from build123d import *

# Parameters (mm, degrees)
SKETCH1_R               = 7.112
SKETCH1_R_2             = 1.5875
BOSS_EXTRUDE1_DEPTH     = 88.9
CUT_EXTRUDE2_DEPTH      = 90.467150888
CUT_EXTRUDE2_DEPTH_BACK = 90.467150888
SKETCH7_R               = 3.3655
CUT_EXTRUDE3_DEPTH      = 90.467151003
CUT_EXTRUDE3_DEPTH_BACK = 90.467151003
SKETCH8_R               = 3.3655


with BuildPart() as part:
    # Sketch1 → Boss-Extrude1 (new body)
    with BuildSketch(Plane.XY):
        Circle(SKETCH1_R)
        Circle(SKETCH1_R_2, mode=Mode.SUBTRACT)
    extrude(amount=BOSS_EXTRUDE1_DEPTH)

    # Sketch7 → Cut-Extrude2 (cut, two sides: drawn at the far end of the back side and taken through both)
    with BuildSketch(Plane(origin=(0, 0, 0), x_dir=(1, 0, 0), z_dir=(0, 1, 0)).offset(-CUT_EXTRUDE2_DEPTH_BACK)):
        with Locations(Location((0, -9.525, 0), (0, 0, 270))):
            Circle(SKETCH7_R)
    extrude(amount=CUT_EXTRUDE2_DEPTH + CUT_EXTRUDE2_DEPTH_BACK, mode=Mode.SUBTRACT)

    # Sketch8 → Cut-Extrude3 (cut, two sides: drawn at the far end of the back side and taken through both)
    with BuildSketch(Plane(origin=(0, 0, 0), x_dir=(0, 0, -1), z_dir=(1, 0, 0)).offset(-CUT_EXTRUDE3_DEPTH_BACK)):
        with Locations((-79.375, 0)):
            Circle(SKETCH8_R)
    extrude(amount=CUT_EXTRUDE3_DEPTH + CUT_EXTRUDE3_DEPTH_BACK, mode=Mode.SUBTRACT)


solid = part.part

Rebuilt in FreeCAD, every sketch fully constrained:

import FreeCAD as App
import Part
import Sketcher
from FreeCAD import Vector
Q = App.Units.Quantity

doc = App.newDocument("Part")
params = doc.addObject("Spreadsheet::Sheet", "Params")
for row, (alias, value) in enumerate([
    ("sketch1_diameter", "0.56 in"),
    ("sketch1_diameter2", "0.125 in"),
    ("pad1_length", "3.5 in"),
    ("sketch2_diameter", "0.265 in"),
    ("sketch3_diameter", "0.265 in"),
], start=1):
    params.set(f"A{row}", alias)
    params.set(f"B{row}", "=" + value)
    params.setAlias(f"B{row}", alias)

body = doc.addObject("PartDesign::Body", "Body")

# Sketch on XY plane
sketch1 = body.newObject("Sketcher::SketchObject", "Sketch")
sketch1.AttachmentSupport = (doc.getObject("XY_Plane"), [""])
sketch1.MapMode = "FlatFace"
sketch1.addGeometry([
    Part.Circle(Vector(0, 0, 0), Vector(0, 0, 1), 7.1),
    Part.Circle(Vector(0, 0, 0), Vector(0, 0, 1), 1.6),
], False)
sketch1.addConstraint([
    Sketcher.Constraint("Coincident", 0, 3, -1, 1),
    Sketcher.Constraint("Coincident", 1, 3, -1, 1),
    Sketcher.Constraint("Diameter", 0, Q("0.56 in")),
    Sketcher.Constraint("Diameter", 1, Q("0.125 in")),
])
sketch1.setExpression("Constraints[2]", "Params.sketch1_diameter")
sketch1.setExpression("Constraints[3]", "Params.sketch1_diameter2")
pad1 = body.newObject("PartDesign::Pad", "Pad")
pad1.Profile = sketch1
pad1.setExpression("Length", "Params.pad1_length")

# Sketch on XZ plane
sketch2 = body.newObject("Sketcher::SketchObject", "Sketch001")
sketch2.AttachmentSupport = (doc.getObject("XZ_Plane"), [""])
sketch2.MapMode = "FlatFace"
sketch2.addGeometry(Part.Circle(Vector(0, 9.5, 0), Vector(0, 0, 1), 3.4), False)
sketch2.addConstraint([
    Sketcher.Constraint("PointOnObject", 0, 3, -2),
    Sketcher.Constraint("Diameter", 0, Q("0.265 in")),
    Sketcher.Constraint("DistanceY", -1, 1, 0, 3, Q("0.375 in")),
])
sketch2.setExpression("Constraints[1]", "Params.sketch2_diameter")
pocket1 = body.newObject("PartDesign::Pocket", "Pocket")
pocket1.Profile = sketch2
pocket1.Type = "ThroughAll"
pocket1.Midplane = True

# Sketch on YZ plane
sketch3 = body.newObject("Sketcher::SketchObject", "Sketch002")
sketch3.AttachmentSupport = (doc.getObject("YZ_Plane"), [""])
sketch3.MapMode = "FlatFace"
sketch3.addGeometry(Part.Circle(Vector(0, 79.4, 0), Vector(0, 0, 1), 3.4), False)
sketch3.addConstraint([
    Sketcher.Constraint("PointOnObject", 0, 3, -2),
    Sketcher.Constraint("Diameter", 0, Q("0.265 in")),
    Sketcher.Constraint("DistanceY", -1, 1, 0, 3, Q("3.125 in")),
])
sketch3.setExpression("Constraints[1]", "Params.sketch3_diameter")
pocket2 = body.newObject("PartDesign::Pocket", "Pocket001")
pocket2.Profile = sketch3
pocket2.Type = "ThroughAll"
pocket2.Midplane = True

doc.recompute()
